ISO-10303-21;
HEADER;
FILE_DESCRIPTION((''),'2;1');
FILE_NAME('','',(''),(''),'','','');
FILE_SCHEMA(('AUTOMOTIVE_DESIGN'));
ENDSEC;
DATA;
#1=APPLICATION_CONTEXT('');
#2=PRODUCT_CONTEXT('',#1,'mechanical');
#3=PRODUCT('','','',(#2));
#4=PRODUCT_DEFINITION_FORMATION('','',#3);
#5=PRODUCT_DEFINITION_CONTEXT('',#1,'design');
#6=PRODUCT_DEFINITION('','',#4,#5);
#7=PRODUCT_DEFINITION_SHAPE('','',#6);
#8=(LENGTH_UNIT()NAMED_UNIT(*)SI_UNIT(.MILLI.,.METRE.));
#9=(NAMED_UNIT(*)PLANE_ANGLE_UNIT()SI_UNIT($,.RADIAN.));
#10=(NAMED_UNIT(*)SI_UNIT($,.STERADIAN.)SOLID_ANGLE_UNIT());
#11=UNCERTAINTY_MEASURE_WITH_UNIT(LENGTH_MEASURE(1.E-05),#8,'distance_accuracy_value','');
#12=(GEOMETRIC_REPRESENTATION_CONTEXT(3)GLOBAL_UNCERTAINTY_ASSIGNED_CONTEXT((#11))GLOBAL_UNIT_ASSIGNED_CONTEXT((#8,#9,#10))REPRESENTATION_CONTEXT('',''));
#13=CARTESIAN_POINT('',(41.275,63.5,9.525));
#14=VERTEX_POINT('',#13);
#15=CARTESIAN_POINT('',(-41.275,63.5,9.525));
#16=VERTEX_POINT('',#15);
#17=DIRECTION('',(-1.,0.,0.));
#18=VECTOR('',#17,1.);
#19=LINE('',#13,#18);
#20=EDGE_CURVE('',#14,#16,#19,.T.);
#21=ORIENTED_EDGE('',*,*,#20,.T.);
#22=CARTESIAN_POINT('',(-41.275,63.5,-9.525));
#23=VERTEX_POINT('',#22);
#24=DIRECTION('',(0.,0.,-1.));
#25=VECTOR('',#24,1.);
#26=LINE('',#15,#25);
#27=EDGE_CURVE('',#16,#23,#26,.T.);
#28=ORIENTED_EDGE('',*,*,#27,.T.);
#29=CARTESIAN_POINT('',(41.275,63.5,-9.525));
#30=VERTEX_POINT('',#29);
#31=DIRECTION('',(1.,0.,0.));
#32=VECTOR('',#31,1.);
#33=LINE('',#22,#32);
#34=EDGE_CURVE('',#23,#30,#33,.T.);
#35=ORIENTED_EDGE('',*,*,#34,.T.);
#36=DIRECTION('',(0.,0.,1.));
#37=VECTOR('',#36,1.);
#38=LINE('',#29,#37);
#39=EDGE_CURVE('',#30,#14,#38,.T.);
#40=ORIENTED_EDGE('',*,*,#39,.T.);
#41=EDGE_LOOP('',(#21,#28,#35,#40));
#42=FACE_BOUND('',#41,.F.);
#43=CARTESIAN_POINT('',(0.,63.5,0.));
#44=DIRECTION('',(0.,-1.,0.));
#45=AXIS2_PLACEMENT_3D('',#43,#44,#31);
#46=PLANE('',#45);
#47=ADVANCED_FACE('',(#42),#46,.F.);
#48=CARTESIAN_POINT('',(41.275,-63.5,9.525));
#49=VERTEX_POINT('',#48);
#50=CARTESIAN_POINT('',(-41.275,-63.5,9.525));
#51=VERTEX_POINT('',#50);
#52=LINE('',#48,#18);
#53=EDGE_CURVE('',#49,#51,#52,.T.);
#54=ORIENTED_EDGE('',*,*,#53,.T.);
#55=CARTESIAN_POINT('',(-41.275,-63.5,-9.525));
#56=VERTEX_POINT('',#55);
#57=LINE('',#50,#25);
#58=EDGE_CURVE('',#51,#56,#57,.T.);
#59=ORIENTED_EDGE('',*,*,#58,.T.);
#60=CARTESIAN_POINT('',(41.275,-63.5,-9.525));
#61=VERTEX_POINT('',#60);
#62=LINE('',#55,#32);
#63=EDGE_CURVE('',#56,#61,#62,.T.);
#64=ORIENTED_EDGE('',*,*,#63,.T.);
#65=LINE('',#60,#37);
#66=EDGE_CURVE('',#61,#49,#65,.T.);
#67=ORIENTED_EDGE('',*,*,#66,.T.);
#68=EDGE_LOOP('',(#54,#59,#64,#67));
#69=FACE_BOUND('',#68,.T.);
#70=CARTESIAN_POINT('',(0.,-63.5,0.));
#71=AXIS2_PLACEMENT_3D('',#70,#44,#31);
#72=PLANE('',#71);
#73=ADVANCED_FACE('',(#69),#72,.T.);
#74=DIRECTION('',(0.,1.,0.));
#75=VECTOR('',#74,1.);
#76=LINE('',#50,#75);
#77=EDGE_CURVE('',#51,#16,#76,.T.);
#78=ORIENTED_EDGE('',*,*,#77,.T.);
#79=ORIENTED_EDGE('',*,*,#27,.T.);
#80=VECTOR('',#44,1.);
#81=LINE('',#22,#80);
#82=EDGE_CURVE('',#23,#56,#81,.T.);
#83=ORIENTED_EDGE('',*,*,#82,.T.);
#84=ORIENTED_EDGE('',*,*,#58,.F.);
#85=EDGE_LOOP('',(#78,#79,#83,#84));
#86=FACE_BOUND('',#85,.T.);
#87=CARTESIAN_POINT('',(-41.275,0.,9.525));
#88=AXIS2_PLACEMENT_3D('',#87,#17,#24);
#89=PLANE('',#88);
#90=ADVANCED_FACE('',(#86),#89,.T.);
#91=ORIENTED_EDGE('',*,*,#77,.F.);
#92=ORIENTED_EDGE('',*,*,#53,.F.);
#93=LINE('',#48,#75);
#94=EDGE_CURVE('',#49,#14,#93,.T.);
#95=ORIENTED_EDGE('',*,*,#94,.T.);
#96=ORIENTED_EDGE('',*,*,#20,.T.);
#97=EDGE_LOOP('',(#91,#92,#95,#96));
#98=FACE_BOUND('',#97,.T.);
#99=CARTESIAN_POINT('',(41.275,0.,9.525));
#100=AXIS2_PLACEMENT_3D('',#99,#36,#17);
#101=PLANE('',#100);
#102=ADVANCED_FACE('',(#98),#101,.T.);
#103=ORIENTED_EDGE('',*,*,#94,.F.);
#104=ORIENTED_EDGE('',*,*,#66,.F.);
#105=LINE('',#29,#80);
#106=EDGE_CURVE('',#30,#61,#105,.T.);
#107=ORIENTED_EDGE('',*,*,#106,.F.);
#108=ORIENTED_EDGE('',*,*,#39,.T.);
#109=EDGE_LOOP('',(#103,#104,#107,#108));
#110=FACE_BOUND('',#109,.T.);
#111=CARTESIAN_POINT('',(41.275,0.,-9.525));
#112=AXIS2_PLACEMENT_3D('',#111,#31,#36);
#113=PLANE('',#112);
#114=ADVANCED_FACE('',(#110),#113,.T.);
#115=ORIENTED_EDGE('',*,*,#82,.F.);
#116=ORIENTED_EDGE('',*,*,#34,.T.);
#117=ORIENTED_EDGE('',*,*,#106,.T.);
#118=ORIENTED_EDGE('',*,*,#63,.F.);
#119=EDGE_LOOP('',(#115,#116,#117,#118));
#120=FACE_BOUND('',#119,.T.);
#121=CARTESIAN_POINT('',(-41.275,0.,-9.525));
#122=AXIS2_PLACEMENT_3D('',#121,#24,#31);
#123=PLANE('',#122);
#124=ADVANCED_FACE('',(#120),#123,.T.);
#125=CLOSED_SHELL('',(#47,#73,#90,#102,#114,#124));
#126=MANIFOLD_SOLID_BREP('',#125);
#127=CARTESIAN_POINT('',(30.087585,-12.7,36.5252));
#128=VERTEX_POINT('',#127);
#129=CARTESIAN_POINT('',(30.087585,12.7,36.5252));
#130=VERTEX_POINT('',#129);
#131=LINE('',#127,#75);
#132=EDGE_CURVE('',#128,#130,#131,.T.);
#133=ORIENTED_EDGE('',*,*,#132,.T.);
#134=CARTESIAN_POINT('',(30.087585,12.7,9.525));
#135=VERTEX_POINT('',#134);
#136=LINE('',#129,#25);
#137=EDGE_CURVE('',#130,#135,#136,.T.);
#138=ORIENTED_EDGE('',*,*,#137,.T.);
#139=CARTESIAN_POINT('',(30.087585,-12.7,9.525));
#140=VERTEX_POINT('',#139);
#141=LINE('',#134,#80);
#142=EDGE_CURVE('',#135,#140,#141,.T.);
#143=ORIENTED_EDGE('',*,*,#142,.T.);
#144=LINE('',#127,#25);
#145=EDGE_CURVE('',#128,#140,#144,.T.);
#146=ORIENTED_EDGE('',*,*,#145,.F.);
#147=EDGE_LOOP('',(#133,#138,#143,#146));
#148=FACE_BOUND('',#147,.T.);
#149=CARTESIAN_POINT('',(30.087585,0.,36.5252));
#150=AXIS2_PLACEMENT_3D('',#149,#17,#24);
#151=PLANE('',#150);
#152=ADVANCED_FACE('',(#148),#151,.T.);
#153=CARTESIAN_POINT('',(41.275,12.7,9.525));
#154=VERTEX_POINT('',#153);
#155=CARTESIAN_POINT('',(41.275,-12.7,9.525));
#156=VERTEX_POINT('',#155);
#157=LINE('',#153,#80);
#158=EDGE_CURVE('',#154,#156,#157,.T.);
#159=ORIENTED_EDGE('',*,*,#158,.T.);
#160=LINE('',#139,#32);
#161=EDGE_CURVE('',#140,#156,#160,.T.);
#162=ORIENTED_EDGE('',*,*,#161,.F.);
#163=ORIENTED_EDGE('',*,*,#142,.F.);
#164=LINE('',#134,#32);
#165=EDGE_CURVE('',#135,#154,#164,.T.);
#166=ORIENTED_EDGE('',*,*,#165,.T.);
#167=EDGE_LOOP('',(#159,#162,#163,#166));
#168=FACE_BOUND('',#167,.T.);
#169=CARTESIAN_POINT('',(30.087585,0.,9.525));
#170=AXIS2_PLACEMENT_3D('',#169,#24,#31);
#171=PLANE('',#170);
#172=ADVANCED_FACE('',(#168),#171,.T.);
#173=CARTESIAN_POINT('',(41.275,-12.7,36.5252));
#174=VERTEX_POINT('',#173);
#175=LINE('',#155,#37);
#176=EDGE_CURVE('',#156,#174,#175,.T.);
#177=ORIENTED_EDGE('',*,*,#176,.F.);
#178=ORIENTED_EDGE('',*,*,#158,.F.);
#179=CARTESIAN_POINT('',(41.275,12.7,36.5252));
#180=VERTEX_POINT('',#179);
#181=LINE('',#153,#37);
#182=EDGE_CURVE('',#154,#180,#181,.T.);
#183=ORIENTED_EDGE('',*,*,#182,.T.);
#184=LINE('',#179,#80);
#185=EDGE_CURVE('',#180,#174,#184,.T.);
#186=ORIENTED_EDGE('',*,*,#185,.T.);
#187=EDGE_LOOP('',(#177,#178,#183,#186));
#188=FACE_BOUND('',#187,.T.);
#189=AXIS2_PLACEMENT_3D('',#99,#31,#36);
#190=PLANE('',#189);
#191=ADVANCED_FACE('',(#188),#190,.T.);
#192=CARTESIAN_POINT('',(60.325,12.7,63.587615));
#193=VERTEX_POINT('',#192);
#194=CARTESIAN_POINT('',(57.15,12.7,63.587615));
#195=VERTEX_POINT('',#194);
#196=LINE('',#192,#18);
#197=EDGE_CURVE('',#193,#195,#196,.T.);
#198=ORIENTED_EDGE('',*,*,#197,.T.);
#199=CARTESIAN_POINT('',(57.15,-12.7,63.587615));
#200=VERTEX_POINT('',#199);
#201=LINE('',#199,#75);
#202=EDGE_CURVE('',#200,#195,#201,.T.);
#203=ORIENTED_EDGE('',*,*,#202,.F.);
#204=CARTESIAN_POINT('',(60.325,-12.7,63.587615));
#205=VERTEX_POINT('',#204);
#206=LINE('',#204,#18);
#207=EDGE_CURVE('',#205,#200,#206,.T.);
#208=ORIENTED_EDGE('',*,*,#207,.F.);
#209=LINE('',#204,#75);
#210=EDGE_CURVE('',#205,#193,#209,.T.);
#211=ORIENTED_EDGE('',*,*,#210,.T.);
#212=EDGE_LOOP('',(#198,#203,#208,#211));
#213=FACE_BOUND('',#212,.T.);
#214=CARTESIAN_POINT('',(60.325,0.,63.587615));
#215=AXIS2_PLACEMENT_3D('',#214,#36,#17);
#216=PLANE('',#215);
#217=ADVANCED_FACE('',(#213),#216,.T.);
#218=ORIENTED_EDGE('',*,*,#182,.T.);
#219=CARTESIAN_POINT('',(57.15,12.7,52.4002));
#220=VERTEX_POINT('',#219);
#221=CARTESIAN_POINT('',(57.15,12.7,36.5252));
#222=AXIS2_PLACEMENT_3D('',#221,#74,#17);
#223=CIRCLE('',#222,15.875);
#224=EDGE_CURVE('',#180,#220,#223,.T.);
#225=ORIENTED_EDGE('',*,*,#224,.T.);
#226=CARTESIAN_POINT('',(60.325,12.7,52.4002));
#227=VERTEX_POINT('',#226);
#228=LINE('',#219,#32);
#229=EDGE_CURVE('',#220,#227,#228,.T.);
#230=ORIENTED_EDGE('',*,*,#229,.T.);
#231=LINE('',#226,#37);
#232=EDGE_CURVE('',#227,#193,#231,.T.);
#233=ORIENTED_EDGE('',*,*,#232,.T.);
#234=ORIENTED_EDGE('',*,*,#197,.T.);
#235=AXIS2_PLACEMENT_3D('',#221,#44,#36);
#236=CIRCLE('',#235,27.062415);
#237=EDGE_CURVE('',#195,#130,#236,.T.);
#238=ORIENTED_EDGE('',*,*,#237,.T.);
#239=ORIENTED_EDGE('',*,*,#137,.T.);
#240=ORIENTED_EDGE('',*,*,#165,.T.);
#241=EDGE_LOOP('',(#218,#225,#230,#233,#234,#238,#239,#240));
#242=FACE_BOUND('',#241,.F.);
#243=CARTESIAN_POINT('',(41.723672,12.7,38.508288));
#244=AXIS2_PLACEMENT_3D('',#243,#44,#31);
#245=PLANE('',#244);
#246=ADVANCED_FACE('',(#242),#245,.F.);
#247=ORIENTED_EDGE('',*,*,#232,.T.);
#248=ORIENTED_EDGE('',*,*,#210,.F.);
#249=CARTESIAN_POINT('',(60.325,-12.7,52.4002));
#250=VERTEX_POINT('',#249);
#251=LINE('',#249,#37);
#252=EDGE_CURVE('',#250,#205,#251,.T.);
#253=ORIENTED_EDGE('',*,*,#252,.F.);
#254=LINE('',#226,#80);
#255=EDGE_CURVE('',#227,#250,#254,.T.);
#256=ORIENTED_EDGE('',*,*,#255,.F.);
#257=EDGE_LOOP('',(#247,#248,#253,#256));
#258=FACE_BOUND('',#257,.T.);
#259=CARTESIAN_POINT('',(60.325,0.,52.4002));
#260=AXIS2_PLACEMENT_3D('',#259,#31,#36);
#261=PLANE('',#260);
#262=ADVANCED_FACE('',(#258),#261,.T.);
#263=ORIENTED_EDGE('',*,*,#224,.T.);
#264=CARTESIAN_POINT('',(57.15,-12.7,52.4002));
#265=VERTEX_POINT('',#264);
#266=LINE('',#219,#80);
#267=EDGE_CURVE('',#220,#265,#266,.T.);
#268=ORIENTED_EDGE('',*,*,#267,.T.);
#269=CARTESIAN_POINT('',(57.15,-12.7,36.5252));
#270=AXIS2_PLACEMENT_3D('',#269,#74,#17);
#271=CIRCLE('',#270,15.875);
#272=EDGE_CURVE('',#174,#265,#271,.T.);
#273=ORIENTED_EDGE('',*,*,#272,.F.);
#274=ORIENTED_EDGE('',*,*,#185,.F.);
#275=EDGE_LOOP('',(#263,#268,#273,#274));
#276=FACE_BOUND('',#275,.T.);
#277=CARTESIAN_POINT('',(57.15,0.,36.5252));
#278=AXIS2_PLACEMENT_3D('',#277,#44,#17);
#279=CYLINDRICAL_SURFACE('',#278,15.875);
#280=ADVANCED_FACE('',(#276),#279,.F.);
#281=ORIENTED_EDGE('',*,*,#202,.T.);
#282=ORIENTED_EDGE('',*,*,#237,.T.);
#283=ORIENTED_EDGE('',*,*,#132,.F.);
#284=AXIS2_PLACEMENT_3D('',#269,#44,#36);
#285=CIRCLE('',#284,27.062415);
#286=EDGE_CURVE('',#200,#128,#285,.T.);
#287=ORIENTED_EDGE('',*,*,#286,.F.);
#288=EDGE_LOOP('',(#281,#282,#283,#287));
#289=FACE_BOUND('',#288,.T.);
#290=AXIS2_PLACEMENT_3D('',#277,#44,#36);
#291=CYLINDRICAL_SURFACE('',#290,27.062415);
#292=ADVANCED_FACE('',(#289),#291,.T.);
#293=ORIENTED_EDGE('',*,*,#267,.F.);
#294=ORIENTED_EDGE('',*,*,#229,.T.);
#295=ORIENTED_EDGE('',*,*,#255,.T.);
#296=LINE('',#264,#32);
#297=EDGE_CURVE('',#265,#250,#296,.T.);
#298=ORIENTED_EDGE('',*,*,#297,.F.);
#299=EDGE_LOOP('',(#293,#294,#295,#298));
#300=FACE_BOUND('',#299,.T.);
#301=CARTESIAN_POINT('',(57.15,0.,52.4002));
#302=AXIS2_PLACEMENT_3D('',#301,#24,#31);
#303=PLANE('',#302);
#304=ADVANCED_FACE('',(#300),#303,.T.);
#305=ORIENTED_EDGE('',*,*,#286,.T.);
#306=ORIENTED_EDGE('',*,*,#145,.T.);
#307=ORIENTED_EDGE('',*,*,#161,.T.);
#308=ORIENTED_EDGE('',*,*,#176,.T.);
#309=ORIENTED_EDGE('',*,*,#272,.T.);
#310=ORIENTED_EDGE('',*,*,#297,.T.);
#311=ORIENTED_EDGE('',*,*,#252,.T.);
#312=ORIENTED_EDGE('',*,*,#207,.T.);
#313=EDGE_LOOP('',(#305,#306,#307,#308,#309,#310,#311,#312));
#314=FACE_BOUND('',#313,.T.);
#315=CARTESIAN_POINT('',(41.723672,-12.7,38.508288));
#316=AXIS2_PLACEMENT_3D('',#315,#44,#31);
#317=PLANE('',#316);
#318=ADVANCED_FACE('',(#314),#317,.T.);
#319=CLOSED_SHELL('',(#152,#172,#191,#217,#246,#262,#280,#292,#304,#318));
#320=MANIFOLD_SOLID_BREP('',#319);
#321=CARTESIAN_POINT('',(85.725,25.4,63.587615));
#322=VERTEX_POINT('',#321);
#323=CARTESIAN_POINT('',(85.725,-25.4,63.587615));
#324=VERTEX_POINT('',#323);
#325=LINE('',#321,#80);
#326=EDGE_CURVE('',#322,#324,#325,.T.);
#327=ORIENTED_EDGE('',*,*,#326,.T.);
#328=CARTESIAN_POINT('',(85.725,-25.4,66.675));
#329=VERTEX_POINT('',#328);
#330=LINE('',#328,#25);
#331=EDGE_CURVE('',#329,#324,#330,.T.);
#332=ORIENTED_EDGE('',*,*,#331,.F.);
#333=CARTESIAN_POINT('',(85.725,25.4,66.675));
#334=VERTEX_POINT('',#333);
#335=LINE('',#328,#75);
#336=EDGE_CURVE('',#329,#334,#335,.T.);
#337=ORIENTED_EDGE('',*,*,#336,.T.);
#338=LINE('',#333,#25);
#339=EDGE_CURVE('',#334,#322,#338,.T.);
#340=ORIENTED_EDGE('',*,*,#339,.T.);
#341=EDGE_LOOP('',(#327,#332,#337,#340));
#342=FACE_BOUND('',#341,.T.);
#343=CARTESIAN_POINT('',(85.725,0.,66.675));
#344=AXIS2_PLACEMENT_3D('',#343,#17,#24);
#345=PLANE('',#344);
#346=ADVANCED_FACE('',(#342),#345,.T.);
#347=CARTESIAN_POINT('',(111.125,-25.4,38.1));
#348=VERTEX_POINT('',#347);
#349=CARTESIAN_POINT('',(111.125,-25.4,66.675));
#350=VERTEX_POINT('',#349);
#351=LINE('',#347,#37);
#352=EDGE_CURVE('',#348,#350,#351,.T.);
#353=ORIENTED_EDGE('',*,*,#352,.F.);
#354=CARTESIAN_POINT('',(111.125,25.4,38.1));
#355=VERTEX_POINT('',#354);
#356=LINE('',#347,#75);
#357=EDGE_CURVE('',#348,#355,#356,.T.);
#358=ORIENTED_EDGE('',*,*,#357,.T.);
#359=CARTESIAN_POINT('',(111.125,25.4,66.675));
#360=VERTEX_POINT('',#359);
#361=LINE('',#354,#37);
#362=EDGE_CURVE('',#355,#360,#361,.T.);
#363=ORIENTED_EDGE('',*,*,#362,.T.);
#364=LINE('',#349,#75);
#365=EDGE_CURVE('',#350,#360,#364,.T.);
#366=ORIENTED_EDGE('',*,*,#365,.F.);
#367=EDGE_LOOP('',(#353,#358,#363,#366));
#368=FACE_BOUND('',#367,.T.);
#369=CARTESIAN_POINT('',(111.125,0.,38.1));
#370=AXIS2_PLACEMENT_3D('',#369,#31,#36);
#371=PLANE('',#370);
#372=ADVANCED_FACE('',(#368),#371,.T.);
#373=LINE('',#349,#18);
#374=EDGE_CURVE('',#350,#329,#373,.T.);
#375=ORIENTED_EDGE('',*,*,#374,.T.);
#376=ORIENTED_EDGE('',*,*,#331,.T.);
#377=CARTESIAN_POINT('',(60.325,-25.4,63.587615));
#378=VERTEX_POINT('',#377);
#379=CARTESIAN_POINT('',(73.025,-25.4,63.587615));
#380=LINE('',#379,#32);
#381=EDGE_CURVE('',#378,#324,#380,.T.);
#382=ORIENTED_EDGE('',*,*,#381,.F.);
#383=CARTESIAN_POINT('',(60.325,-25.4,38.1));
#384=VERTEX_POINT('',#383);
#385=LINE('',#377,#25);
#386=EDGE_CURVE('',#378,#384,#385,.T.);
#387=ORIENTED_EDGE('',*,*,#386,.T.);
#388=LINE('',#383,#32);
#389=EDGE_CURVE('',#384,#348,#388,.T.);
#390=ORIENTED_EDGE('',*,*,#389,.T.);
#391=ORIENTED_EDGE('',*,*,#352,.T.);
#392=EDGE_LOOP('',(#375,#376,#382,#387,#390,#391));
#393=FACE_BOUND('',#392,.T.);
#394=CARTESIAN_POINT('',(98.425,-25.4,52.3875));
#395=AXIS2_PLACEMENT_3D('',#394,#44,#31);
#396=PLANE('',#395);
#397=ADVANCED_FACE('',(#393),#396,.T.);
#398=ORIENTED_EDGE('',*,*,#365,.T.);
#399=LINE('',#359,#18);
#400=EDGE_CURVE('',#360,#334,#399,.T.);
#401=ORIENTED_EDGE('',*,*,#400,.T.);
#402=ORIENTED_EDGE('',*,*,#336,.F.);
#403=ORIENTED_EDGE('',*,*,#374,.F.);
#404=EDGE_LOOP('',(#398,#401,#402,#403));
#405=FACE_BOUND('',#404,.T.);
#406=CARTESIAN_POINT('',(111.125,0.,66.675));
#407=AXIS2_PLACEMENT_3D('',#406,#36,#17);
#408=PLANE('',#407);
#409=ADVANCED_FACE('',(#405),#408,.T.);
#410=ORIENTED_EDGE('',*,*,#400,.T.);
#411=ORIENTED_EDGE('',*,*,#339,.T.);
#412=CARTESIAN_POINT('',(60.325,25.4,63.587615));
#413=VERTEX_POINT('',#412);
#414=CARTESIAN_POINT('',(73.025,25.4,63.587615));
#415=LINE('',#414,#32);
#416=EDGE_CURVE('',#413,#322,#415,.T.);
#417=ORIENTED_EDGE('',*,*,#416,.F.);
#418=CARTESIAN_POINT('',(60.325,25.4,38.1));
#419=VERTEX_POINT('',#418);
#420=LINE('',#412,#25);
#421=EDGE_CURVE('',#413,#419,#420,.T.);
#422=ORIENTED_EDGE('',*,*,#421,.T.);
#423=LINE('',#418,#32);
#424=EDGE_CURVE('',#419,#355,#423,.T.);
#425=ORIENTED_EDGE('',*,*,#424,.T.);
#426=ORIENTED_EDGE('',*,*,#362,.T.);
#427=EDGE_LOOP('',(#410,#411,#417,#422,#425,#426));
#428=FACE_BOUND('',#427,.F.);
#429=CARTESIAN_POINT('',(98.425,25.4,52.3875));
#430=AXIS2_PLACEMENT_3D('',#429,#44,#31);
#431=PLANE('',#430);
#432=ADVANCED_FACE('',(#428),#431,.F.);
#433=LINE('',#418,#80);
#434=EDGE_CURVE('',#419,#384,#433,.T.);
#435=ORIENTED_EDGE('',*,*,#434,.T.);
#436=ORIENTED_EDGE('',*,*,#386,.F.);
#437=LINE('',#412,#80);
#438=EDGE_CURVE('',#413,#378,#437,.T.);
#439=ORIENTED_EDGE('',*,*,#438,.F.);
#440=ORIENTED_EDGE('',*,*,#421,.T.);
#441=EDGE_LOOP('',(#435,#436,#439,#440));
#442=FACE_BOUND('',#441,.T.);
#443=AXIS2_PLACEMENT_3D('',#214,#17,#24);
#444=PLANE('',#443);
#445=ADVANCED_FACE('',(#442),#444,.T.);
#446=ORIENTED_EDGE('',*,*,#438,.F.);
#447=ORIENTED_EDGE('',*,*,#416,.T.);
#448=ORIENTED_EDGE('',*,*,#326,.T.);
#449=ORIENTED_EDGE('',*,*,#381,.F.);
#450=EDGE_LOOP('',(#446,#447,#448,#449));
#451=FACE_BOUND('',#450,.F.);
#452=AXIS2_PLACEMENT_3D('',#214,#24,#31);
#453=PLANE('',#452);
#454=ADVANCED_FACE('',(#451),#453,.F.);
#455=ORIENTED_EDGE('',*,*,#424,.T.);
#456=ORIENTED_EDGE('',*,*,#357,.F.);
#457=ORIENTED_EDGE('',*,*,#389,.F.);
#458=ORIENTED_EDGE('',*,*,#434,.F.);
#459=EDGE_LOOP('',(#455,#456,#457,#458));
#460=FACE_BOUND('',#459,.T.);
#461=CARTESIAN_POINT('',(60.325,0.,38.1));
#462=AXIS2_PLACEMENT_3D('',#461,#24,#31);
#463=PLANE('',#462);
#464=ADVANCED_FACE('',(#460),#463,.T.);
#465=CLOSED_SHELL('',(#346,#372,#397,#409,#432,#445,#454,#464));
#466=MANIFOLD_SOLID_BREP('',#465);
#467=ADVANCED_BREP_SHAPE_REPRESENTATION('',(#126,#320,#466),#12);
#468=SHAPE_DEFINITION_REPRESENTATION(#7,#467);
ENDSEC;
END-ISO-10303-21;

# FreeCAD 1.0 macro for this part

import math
import FreeCAD as App
import Part
import Sketcher

V = App.Vector
Q = App.Units.Quantity

doc = App.newDocument("Part")
body = doc.addObject("PartDesign::Body", "Body")

sketch1 = doc.addObject("Sketcher::SketchObject", "Sketch")
body.addObject(sketch1)
sketch1.AttachmentSupport = (doc.XZ_Plane, [""])
sketch1.MapMode = "FlatFace"
sketch1.addGeometry([
    Part.LineSegment(V(-41, 10, 0), V(-41, -10, 0)),
    Part.LineSegment(V(-41, -10, 0), V(41, -10, 0)),
    Part.LineSegment(V(41, -10, 0), V(41, 10, 0)),
    Part.LineSegment(V(41, 10, 0), V(-41, 10, 0)),
], False)
sketch1.addConstraint([
    Sketcher.Constraint("Coincident", 0, 2, 1, 1),
    Sketcher.Constraint("Coincident", 1, 2, 2, 1),
    Sketcher.Constraint("Coincident", 2, 2, 3, 1),
    Sketcher.Constraint("Coincident", 3, 2, 0, 1),
    Sketcher.Constraint("Vertical", 0),
    Sketcher.Constraint("Horizontal", 1),
    Sketcher.Constraint("Vertical", 2),
    Sketcher.Constraint("Horizontal", 3),
    Sketcher.Constraint("Symmetric", 0, 2, 2, 2, -1, 1),
    Sketcher.Constraint("DistanceX", 1, 1, 1, 2, Q("3.25 in")),
    Sketcher.Constraint("DistanceY", 0, 2, 0, 1, Q("0.75 in")),
])
pad1 = doc.addObject("PartDesign::Pad", "Pad")
body.addObject(pad1)
pad1.Profile = sketch1
pad1.Length = Q("5 in")
pad1.Midplane = True
body2 = doc.addObject("PartDesign::Body", "Body001")

sketch2 = doc.addObject("Sketcher::SketchObject", "Sketch001")
body2.addObject(sketch2)
sketch2.AttachmentSupport = (doc.getObject("XZ_Plane001"), [""])
sketch2.MapMode = "FlatFace"
sketch2.addGeometry([
    Part.LineSegment(V(85.7, 66.7, 0), V(85.7, 63.6, 0)),
    Part.LineSegment(V(85.7, 63.6, 0), V(60.3, 63.6, 0)),
    Part.LineSegment(V(60.3, 63.6, 0), V(60.3, 38.1, 0)),
    Part.LineSegment(V(60.3, 38.1, 0), V(111.1, 38.1, 0)),
    Part.LineSegment(V(111.1, 38.1, 0), V(111.1, 66.7, 0)),
    Part.LineSegment(V(111.1, 66.7, 0), V(85.7, 66.7, 0)),
], False)
sketch2.addConstraint([
    Sketcher.Constraint("Coincident", 0, 2, 1, 1),
    Sketcher.Constraint("Coincident", 1, 2, 2, 1),
    Sketcher.Constraint("Coincident", 2, 2, 3, 1),
    Sketcher.Constraint("Coincident", 3, 2, 4, 1),
    Sketcher.Constraint("Coincident", 4, 2, 5, 1),
    Sketcher.Constraint("Coincident", 5, 2, 0, 1),
    Sketcher.Constraint("Vertical", 0),
    Sketcher.Constraint("Horizontal", 1),
    Sketcher.Constraint("Vertical", 2),
    Sketcher.Constraint("Horizontal", 3),
    Sketcher.Constraint("Vertical", 4),
    Sketcher.Constraint("Horizontal", 5),
    Sketcher.Constraint("Equal", 1, 5),
    Sketcher.Constraint("DistanceX", 1, 2, 1, 1, Q("1 in")),
    Sketcher.Constraint("DistanceY", -1, 1, 2, 2, Q("1.5 in")),
    Sketcher.Constraint("DistanceY", 4, 1, 4, 2, Q("1.125 in")),
    Sketcher.Constraint("DistanceX", -1, 1, 0, 2, Q("3.375 in")),
    Sketcher.Constraint("DistanceY", 0, 2, 0, 1, Q("3.087385 mm")),
])
pad2 = doc.addObject("PartDesign::Pad", "Pad001")
body2.addObject(pad2)
pad2.Profile = sketch2
pad2.Length = Q("2 in")
pad2.Midplane = True
body3 = doc.addObject("PartDesign::Body", "Body002")

sketch3 = doc.addObject("Sketcher::SketchObject", "Sketch002")
body3.addObject(sketch3)
sketch3.AttachmentSupport = (doc.getObject("XZ_Plane002"), [""])
sketch3.MapMode = "FlatFace"
sketch3.addGeometry([
    Part.LineSegment(V(30.1, 36.5, 0), V(30.1, 9.5, 0)),
    Part.LineSegment(V(30.1, 9.5, 0), V(41.3, 9.5, 0)),
    Part.LineSegment(V(41.3, 9.5, 0), V(41.3, 36.5, 0)),
    Part.ArcOfCircle(Part.Circle(V(57.1, 36.5, 0), V(0, 0, 1), 15.9), math.radians(90), math.radians(180)),
    Part.LineSegment(V(57.1, 52.4, 0), V(60.3, 52.4, 0)),
    Part.LineSegment(V(60.3, 52.4, 0), V(60.3, 63.6, 0)),
    Part.LineSegment(V(60.3, 63.6, 0), V(57.1, 63.6, 0)),
    Part.ArcOfCircle(Part.Circle(V(57.1, 36.5, 0), V(0, 0, 1), 27.1), math.radians(90), math.radians(180)),
], False)
sketch3.addConstraint([
    Sketcher.Constraint("Coincident", 0, 2, 1, 1),
    Sketcher.Constraint("Coincident", 1, 2, 2, 1),
    Sketcher.Constraint("Tangent", 2, 2, 3, 2),
    Sketcher.Constraint("Tangent", 3, 1, 4, 1),
    Sketcher.Constraint("Coincident", 4, 2, 5, 1),
    Sketcher.Constraint("Coincident", 5, 2, 6, 1),
    Sketcher.Constraint("Tangent", 6, 2, 7, 1),
    Sketcher.Constraint("Tangent", 7, 2, 0, 1),
    Sketcher.Constraint("Vertical", 0),
    Sketcher.Constraint("Horizontal", 1),
    Sketcher.Constraint("Vertical", 2),
    Sketcher.Constraint("Horizontal", 4),
    Sketcher.Constraint("Vertical", 5),
    Sketcher.Constraint("Horizontal", 6),
    Sketcher.Constraint("Coincident", 7, 3, 3, 3),
    Sketcher.Constraint("Radius", 3, Q("0.625 in")),
    Sketcher.Constraint("DistanceX", 4, 1, 4, 2, Q("0.125 in")),
    Sketcher.Constraint("DistanceY", 0, 2, 0, 1, Q("1.063 in")),
    Sketcher.Constraint("DistanceX", -1, 1, 3, 3, Q("2.25 in")),
    Sketcher.Constraint("DistanceY", -1, 1, 3, 3, Q("1.438 in")),
    Sketcher.Constraint("Radius", 7, Q("27.062415 mm")),
])
pad3 = doc.addObject("PartDesign::Pad", "Pad002")
body3.addObject(pad3)
pad3.Profile = sketch3
pad3.Length = Q("1 in")
pad3.Midplane = True

doc.recompute()
